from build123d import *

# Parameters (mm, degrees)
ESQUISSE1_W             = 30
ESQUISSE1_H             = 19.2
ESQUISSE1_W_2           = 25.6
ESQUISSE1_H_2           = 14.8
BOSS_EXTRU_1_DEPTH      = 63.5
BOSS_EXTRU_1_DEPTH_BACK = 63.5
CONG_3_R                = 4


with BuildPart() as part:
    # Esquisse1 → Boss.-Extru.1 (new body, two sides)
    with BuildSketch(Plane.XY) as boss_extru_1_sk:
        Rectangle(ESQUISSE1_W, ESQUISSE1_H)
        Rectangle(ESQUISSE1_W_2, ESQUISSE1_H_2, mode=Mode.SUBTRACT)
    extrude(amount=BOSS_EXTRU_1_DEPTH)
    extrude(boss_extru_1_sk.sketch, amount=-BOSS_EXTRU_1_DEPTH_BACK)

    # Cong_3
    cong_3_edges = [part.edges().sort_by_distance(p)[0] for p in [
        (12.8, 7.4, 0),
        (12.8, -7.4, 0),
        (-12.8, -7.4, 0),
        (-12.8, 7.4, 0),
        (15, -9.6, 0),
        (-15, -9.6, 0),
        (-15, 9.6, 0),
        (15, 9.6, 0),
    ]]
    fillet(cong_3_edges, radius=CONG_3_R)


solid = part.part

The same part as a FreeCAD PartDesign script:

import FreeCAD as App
import Part
import Sketcher
Q = App.Units.Quantity


def edges_at(feature, points):
    """Names of the edges that pass closest to the given points."""
    edges = feature.Shape.Edges
    near = lambda p: min(range(len(edges)), key=lambda i: edges[i].distToShape(Part.Vertex(*p))[0])
    return sorted({f"Edge{near(p) + 1}" for p in points})


def add_polygon(sketch, points):
    """Adds a closed chain of lines whose ends are joined by coincident constraints."""
    first, n = sketch.GeometryCount, len(points)
    for a, b in zip(points, points[1:] + points[:1]):
        sketch.addGeometry(Part.LineSegment(App.Vector(*a, 0), App.Vector(*b, 0)), False)
    for i in range(n):
        sketch.addConstraint(Sketcher.Constraint("Coincident", first + i, 2, first + (i + 1) % n, 1))

doc = App.newDocument("Part")
body = doc.addObject("PartDesign::Body", "Body")

# Sketch on XY plane
sketch1 = body.newObject("Sketcher::SketchObject", "Sketch")
sketch1.AttachmentSupport = (doc.getObject("XY_Plane"), [""])
sketch1.MapMode = "FlatFace"
add_polygon(sketch1, [(-15, 10), (-15, -10), (15, -10), (15, 10)])  # lines 0-3
add_polygon(sketch1, [(13, -7), (-13, -7), (-13, 7), (13, 7)])  # lines 4-7
sketch1.addConstraint([
    Sketcher.Constraint("Vertical", 0),
    Sketcher.Constraint("Horizontal", 1),
    Sketcher.Constraint("Vertical", 2),
    Sketcher.Constraint("Horizontal", 3),
    Sketcher.Constraint("Horizontal", 4),
    Sketcher.Constraint("Vertical", 5),
    Sketcher.Constraint("Horizontal", 6),
    Sketcher.Constraint("Vertical", 7),
    Sketcher.Constraint("Symmetric", 0, 2, 2, 2, -1, 1),
    Sketcher.Constraint("Symmetric", 4, 2, 6, 2, -1, 1),
    Sketcher.Constraint("DistanceX", 1, 1, 1, 2, Q("30 mm")),
    Sketcher.Constraint("DistanceX", 4, 2, 4, 1, Q("25.6 mm")),
    Sketcher.Constraint("DistanceY", 0, 2, 0, 1, Q("19.2 mm")),
    Sketcher.Constraint("DistanceY", 5, 1, 5, 2, Q("14.8 mm")),
])
pad1 = body.newObject("PartDesign::Pad", "Pad")
pad1.Profile = sketch1
pad1.Type = "TwoLengths"
pad1.Length = 63.5
pad1.Length2 = 63.5
doc.recompute()

fillet = body.newObject("PartDesign::Fillet", "Fillet")
fillet.Base = (pad1, edges_at(pad1, [
    (12.8, 7.4, 0),
    (12.8, -7.4, 0),
    (-12.8, -7.4, 0),
    (-12.8, 7.4, 0),
    (15, -9.6, 0),
    (-15, -9.6, 0),
    (-15, 9.6, 0),
    (15, 9.6, 0),
]))
fillet.Radius = 4

doc.recompute()
